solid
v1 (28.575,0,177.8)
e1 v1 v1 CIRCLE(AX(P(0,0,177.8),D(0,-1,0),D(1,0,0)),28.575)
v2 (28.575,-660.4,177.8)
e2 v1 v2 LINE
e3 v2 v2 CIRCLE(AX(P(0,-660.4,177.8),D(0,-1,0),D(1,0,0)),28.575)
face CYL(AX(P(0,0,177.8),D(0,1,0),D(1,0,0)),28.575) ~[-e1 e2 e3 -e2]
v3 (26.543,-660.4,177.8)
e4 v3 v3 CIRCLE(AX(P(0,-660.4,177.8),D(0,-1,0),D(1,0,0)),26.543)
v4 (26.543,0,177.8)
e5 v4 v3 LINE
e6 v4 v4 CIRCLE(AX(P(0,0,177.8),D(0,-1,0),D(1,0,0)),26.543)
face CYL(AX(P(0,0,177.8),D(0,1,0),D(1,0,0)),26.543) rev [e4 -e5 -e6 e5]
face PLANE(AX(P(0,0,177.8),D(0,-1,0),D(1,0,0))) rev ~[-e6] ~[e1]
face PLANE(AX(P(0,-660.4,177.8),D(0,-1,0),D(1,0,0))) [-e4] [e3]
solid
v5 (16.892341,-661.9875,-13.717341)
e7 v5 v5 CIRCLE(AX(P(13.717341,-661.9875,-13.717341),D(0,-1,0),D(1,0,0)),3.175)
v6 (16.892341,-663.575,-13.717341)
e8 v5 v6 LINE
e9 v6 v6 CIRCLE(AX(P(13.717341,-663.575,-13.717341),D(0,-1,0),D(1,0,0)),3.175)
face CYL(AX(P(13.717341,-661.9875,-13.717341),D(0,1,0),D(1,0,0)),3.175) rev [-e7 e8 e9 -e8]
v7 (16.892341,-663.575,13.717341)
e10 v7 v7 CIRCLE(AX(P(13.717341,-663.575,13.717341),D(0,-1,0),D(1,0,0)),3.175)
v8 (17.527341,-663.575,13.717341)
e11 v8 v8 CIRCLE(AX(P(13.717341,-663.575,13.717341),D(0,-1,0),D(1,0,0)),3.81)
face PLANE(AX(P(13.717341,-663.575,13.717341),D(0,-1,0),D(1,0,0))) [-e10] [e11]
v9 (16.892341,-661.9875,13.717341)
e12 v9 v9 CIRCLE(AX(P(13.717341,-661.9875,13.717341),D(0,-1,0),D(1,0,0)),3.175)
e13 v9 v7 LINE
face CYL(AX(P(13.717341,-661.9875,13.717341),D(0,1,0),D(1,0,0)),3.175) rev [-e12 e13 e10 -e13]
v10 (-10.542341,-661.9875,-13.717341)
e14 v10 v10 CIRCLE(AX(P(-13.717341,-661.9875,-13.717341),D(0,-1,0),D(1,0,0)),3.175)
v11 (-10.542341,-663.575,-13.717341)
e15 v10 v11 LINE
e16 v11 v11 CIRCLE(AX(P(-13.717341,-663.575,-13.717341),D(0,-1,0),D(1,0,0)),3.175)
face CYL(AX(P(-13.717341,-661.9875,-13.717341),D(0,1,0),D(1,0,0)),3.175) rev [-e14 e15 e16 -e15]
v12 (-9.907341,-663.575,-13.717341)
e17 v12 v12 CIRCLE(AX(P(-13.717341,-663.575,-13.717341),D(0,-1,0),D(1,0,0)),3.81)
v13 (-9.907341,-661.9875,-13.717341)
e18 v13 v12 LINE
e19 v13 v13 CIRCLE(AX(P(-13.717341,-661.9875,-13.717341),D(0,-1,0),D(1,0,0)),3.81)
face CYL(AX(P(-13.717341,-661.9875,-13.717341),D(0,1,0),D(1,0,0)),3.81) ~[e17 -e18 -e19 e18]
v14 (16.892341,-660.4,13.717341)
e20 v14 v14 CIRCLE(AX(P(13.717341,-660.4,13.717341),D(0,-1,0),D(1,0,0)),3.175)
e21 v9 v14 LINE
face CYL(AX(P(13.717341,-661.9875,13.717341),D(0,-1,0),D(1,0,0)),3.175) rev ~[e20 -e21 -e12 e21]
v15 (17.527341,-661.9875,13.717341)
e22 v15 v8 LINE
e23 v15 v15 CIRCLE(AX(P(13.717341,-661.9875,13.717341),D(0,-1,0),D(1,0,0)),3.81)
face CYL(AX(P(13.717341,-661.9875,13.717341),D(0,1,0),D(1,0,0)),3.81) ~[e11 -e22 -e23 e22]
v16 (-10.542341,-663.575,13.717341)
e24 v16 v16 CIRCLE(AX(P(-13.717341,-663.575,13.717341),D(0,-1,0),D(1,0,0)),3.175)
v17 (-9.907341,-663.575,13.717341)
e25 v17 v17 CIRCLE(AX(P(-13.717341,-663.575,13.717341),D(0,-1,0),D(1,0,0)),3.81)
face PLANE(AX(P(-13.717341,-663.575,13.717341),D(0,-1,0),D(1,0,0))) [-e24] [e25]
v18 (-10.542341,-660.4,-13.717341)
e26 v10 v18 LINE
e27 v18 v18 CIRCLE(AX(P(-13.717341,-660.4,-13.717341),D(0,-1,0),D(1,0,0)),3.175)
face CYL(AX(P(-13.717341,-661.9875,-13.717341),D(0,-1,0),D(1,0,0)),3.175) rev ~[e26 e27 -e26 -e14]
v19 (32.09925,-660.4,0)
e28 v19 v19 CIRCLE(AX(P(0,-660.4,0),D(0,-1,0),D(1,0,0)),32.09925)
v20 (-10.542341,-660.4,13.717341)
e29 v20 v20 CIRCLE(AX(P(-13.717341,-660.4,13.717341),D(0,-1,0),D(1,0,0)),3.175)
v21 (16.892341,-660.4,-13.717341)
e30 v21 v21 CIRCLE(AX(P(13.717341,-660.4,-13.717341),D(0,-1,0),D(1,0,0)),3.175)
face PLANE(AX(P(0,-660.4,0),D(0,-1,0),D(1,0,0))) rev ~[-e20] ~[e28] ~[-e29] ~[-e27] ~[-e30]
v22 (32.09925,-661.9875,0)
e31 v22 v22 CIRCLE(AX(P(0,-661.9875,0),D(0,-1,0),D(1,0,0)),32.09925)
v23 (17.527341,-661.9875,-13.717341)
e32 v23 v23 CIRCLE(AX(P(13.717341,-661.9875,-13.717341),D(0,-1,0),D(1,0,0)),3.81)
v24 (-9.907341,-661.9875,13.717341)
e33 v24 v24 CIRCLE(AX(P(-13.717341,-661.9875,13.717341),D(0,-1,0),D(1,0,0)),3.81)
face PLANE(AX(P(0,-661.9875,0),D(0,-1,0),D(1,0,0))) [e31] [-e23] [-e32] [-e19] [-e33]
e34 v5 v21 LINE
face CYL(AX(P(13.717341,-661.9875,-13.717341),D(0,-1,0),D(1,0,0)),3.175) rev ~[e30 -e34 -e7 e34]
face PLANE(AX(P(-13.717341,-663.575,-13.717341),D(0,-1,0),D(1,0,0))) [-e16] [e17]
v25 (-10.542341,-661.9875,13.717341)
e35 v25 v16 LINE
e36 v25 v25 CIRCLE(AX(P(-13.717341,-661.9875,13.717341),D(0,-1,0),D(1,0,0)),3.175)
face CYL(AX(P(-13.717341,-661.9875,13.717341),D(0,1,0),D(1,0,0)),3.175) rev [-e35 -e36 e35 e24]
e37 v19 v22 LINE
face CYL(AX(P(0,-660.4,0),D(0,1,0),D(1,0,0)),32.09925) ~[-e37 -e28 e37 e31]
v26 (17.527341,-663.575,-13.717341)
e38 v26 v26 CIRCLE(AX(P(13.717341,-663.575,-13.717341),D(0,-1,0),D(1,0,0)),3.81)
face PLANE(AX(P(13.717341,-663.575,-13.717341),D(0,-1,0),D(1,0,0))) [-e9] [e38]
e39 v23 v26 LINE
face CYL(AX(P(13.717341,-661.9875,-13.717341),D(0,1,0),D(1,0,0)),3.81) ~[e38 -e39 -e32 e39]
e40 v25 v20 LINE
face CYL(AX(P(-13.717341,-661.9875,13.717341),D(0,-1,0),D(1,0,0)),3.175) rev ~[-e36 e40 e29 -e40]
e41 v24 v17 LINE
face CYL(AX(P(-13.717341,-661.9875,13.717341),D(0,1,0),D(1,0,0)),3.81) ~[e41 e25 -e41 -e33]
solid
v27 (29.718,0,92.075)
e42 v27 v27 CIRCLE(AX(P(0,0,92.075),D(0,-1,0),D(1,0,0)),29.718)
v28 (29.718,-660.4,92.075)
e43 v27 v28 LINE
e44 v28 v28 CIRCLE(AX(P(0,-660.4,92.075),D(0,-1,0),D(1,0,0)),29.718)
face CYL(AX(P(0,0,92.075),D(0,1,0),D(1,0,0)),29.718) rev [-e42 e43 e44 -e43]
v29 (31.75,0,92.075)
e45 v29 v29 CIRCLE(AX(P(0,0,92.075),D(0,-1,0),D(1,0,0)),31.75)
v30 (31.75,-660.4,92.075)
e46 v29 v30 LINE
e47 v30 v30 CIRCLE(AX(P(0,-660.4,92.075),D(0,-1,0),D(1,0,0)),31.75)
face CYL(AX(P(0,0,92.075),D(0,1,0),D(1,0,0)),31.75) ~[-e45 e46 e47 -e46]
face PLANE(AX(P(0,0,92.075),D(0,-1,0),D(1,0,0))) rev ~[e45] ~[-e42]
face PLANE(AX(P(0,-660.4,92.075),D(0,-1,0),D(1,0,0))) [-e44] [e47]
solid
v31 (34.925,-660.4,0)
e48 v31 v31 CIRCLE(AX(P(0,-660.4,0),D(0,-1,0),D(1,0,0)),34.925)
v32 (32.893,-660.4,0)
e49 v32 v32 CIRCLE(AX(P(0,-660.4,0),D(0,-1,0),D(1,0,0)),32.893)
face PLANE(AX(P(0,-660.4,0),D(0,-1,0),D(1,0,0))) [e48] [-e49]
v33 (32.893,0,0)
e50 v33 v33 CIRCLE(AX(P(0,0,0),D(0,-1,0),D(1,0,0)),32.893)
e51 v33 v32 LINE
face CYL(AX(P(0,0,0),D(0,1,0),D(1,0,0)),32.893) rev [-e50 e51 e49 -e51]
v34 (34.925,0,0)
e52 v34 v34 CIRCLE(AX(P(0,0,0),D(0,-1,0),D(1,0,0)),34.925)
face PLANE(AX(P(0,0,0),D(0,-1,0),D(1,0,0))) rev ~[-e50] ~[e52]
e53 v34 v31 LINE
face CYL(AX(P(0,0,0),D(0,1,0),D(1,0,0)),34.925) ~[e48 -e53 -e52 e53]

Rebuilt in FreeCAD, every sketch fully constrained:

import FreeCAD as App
import Part
import Sketcher
from FreeCAD import Vector
Q = App.Units.Quantity

doc = App.newDocument("Part")
body = doc.addObject("PartDesign::Body", "Body")
body.AllowCompound = True

sketch1 = body.newObject("Sketcher::SketchObject", "Sketch")
sketch1.AttachmentSupport = (doc.getObject("XZ_Plane"), [""])
sketch1.MapMode = "FlatFace"
sketch1.addGeometry([
    Part.Circle(Vector(0, 178, 0), Vector(0, 0, 1), 29),
    Part.Circle(Vector(0, 178, 0), Vector(0, 0, 1), 27),
    Part.Circle(Vector(0, 92, 0), Vector(0, 0, 1), 32),
    Part.Circle(Vector(0, 92, 0), Vector(0, 0, 1), 30),
    Part.Circle(Vector(0, 0, 0), Vector(0, 0, 1), 35),
    Part.Circle(Vector(0, 0, 0), Vector(0, 0, 1), 33),
], False)
sketch1.addConstraint([
    Sketcher.Constraint("Coincident", 4, 3, -1, 1),
    Sketcher.Constraint("Coincident", 5, 3, -1, 1),
    Sketcher.Constraint("Coincident", 1, 3, 0, 3),
    Sketcher.Constraint("Coincident", 3, 3, 2, 3),
    Sketcher.Constraint("PointOnObject", 0, 3, -2),
    Sketcher.Constraint("PointOnObject", 2, 3, -2),
    Sketcher.Constraint("Diameter", 2, Q("2.5 in")),
    Sketcher.Constraint("Diameter", 0, Q("2.25 in")),
    Sketcher.Constraint("Diameter", 1, Q("2.09 in")),
    Sketcher.Constraint("Diameter", 3, Q("2.34 in")),
    Sketcher.Constraint("Diameter", 4, Q("2.75 in")),
    Sketcher.Constraint("Diameter", 5, Q("2.59 in")),
    Sketcher.Constraint("DistanceY", -1, 1, 0, 3, Q("7 in")),
    Sketcher.Constraint("DistanceY", -1, 1, 2, 3, Q("3.625 in")),
])
pad1 = body.newObject("PartDesign::Pad", "Pad")
pad1.Profile = sketch1
pad1.Length = Q("26 in")
body2 = doc.addObject("PartDesign::Body", "Body001")

sketch2 = body2.newObject("Sketcher::SketchObject", "Sketch001")
sketch2.AttachmentSupport = (doc.getObject("XZ_Plane001"), [""])
sketch2.MapMode = "FlatFace"
sketch2.AttachmentOffset = App.Placement(Vector(0, 0, 26 * 25.4), App.Rotation())
sketch2.addGeometry(Part.Circle(Vector(0, 0, 0), Vector(0, 0, 1), 32), False)
sketch2.addConstraint([
    Sketcher.Constraint("Coincident", 0, 3, -1, 1),
    Sketcher.Constraint("Diameter", 0, Q("2.5275 in")),
])
pad2 = body2.newObject("PartDesign::Pad", "Pad001")
pad2.Profile = sketch2
pad2.Length = Q("0.0625 in")

sketch3 = body2.newObject("Sketcher::SketchObject", "Sketch002")
sketch3.AttachmentSupport = (doc.getObject("XZ_Plane001"), [""])
sketch3.MapMode = "FlatFace"
sketch3.AttachmentOffset = App.Placement(Vector(0, 0, 26.0625 * 25.4), App.Rotation())
sketch3.addGeometry([
    Part.Circle(Vector(-13.7, 13.7, 0), Vector(0, 0, 1), 3.8),
    Part.Circle(Vector(-13.7, 13.7, 0), Vector(0, 0, 1), 3.2),
    Part.Circle(Vector(13.7, 13.7, 0), Vector(0, 0, 1), 3.8),
    Part.Circle(Vector(13.7, 13.7, 0), Vector(0, 0, 1), 3.2),
    Part.Circle(Vector(13.7, -13.7, 0), Vector(0, 0, 1), 3.8),
    Part.Circle(Vector(13.7, -13.7, 0), Vector(0, 0, 1), 3.2),
    Part.Circle(Vector(-13.7, -13.7, 0), Vector(0, 0, 1), 3.8),
    Part.Circle(Vector(-13.7, -13.7, 0), Vector(0, 0, 1), 3.2),
], False)
sketch3.addConstraint([
    Sketcher.Constraint("Coincident", 1, 3, 0, 3),
    Sketcher.Constraint("Coincident", 3, 3, 2, 3),
    Sketcher.Constraint("Coincident", 5, 3, 4, 3),
    Sketcher.Constraint("Coincident", 7, 3, 6, 3),
    Sketcher.Constraint("Equal", 0, 2),
    Sketcher.Constraint("Equal", 1, 3),
    Sketcher.Constraint("Equal", 2, 4),
    Sketcher.Constraint("Equal", 3, 5),
    Sketcher.Constraint("Equal", 4, 6),
    Sketcher.Constraint("Equal", 5, 7),
    Sketcher.Constraint("Symmetric", 0, 3, 4, 3, -1, 1),
    Sketcher.Constraint("Symmetric", 2, 3, 6, 3, -1, 1),
    Sketcher.Constraint("Symmetric", 0, 3, 2, 3, -2),
    Sketcher.Constraint("Diameter", 0, Q("0.3 in")),
    Sketcher.Constraint("Diameter", 1, Q("0.25 in")),
    Sketcher.Constraint("DistanceX", 0, 3, -1, 1, Q("13.717341 mm")),
    Sketcher.Constraint("DistanceY", -1, 1, 0, 3, Q("13.717341 mm")),
])
pad3 = body2.newObject("PartDesign::Pad", "Pad002")
pad3.Profile = sketch3
pad3.Length = Q("0.0625 in")

sketch4 = body2.newObject("Sketcher::SketchObject", "Sketch003")
sketch4.AttachmentSupport = (doc.getObject("XZ_Plane001"), [""])
sketch4.MapMode = "FlatFace"
sketch4.AttachmentOffset = App.Placement(Vector(0, 0, 26.0625 * 25.4), App.Rotation())
sketch4.addGeometry([
    Part.Circle(Vector(-13.7, 13.7, 0), Vector(0, 0, 1), 3.2),
    Part.Circle(Vector(13.7, 13.7, 0), Vector(0, 0, 1), 3.2),
    Part.Circle(Vector(13.7, -13.7, 0), Vector(0, 0, 1), 3.2),
    Part.Circle(Vector(-13.7, -13.7, 0), Vector(0, 0, 1), 3.2),
], False)
sketch4.addConstraint([
    Sketcher.Constraint("Equal", 0, 1),
    Sketcher.Constraint("Equal", 1, 2),
    Sketcher.Constraint("Equal", 2, 3),
    Sketcher.Constraint("Symmetric", 0, 3, 2, 3, -1, 1),
    Sketcher.Constraint("Symmetric", 1, 3, 3, 3, -1, 1),
    Sketcher.Constraint("Symmetric", 0, 3, 1, 3, -2),
    Sketcher.Constraint("Diameter", 0, Q("0.25 in")),
    Sketcher.Constraint("DistanceX", 0, 3, -1, 1, Q("13.717341 mm")),
    Sketcher.Constraint("DistanceY", -1, 1, 0, 3, Q("13.717341 mm")),
])
pocket1 = body2.newObject("PartDesign::Pocket", "Pocket")
pocket1.Profile = sketch4
pocket1.Type = "ThroughAll"

doc.recompute()
